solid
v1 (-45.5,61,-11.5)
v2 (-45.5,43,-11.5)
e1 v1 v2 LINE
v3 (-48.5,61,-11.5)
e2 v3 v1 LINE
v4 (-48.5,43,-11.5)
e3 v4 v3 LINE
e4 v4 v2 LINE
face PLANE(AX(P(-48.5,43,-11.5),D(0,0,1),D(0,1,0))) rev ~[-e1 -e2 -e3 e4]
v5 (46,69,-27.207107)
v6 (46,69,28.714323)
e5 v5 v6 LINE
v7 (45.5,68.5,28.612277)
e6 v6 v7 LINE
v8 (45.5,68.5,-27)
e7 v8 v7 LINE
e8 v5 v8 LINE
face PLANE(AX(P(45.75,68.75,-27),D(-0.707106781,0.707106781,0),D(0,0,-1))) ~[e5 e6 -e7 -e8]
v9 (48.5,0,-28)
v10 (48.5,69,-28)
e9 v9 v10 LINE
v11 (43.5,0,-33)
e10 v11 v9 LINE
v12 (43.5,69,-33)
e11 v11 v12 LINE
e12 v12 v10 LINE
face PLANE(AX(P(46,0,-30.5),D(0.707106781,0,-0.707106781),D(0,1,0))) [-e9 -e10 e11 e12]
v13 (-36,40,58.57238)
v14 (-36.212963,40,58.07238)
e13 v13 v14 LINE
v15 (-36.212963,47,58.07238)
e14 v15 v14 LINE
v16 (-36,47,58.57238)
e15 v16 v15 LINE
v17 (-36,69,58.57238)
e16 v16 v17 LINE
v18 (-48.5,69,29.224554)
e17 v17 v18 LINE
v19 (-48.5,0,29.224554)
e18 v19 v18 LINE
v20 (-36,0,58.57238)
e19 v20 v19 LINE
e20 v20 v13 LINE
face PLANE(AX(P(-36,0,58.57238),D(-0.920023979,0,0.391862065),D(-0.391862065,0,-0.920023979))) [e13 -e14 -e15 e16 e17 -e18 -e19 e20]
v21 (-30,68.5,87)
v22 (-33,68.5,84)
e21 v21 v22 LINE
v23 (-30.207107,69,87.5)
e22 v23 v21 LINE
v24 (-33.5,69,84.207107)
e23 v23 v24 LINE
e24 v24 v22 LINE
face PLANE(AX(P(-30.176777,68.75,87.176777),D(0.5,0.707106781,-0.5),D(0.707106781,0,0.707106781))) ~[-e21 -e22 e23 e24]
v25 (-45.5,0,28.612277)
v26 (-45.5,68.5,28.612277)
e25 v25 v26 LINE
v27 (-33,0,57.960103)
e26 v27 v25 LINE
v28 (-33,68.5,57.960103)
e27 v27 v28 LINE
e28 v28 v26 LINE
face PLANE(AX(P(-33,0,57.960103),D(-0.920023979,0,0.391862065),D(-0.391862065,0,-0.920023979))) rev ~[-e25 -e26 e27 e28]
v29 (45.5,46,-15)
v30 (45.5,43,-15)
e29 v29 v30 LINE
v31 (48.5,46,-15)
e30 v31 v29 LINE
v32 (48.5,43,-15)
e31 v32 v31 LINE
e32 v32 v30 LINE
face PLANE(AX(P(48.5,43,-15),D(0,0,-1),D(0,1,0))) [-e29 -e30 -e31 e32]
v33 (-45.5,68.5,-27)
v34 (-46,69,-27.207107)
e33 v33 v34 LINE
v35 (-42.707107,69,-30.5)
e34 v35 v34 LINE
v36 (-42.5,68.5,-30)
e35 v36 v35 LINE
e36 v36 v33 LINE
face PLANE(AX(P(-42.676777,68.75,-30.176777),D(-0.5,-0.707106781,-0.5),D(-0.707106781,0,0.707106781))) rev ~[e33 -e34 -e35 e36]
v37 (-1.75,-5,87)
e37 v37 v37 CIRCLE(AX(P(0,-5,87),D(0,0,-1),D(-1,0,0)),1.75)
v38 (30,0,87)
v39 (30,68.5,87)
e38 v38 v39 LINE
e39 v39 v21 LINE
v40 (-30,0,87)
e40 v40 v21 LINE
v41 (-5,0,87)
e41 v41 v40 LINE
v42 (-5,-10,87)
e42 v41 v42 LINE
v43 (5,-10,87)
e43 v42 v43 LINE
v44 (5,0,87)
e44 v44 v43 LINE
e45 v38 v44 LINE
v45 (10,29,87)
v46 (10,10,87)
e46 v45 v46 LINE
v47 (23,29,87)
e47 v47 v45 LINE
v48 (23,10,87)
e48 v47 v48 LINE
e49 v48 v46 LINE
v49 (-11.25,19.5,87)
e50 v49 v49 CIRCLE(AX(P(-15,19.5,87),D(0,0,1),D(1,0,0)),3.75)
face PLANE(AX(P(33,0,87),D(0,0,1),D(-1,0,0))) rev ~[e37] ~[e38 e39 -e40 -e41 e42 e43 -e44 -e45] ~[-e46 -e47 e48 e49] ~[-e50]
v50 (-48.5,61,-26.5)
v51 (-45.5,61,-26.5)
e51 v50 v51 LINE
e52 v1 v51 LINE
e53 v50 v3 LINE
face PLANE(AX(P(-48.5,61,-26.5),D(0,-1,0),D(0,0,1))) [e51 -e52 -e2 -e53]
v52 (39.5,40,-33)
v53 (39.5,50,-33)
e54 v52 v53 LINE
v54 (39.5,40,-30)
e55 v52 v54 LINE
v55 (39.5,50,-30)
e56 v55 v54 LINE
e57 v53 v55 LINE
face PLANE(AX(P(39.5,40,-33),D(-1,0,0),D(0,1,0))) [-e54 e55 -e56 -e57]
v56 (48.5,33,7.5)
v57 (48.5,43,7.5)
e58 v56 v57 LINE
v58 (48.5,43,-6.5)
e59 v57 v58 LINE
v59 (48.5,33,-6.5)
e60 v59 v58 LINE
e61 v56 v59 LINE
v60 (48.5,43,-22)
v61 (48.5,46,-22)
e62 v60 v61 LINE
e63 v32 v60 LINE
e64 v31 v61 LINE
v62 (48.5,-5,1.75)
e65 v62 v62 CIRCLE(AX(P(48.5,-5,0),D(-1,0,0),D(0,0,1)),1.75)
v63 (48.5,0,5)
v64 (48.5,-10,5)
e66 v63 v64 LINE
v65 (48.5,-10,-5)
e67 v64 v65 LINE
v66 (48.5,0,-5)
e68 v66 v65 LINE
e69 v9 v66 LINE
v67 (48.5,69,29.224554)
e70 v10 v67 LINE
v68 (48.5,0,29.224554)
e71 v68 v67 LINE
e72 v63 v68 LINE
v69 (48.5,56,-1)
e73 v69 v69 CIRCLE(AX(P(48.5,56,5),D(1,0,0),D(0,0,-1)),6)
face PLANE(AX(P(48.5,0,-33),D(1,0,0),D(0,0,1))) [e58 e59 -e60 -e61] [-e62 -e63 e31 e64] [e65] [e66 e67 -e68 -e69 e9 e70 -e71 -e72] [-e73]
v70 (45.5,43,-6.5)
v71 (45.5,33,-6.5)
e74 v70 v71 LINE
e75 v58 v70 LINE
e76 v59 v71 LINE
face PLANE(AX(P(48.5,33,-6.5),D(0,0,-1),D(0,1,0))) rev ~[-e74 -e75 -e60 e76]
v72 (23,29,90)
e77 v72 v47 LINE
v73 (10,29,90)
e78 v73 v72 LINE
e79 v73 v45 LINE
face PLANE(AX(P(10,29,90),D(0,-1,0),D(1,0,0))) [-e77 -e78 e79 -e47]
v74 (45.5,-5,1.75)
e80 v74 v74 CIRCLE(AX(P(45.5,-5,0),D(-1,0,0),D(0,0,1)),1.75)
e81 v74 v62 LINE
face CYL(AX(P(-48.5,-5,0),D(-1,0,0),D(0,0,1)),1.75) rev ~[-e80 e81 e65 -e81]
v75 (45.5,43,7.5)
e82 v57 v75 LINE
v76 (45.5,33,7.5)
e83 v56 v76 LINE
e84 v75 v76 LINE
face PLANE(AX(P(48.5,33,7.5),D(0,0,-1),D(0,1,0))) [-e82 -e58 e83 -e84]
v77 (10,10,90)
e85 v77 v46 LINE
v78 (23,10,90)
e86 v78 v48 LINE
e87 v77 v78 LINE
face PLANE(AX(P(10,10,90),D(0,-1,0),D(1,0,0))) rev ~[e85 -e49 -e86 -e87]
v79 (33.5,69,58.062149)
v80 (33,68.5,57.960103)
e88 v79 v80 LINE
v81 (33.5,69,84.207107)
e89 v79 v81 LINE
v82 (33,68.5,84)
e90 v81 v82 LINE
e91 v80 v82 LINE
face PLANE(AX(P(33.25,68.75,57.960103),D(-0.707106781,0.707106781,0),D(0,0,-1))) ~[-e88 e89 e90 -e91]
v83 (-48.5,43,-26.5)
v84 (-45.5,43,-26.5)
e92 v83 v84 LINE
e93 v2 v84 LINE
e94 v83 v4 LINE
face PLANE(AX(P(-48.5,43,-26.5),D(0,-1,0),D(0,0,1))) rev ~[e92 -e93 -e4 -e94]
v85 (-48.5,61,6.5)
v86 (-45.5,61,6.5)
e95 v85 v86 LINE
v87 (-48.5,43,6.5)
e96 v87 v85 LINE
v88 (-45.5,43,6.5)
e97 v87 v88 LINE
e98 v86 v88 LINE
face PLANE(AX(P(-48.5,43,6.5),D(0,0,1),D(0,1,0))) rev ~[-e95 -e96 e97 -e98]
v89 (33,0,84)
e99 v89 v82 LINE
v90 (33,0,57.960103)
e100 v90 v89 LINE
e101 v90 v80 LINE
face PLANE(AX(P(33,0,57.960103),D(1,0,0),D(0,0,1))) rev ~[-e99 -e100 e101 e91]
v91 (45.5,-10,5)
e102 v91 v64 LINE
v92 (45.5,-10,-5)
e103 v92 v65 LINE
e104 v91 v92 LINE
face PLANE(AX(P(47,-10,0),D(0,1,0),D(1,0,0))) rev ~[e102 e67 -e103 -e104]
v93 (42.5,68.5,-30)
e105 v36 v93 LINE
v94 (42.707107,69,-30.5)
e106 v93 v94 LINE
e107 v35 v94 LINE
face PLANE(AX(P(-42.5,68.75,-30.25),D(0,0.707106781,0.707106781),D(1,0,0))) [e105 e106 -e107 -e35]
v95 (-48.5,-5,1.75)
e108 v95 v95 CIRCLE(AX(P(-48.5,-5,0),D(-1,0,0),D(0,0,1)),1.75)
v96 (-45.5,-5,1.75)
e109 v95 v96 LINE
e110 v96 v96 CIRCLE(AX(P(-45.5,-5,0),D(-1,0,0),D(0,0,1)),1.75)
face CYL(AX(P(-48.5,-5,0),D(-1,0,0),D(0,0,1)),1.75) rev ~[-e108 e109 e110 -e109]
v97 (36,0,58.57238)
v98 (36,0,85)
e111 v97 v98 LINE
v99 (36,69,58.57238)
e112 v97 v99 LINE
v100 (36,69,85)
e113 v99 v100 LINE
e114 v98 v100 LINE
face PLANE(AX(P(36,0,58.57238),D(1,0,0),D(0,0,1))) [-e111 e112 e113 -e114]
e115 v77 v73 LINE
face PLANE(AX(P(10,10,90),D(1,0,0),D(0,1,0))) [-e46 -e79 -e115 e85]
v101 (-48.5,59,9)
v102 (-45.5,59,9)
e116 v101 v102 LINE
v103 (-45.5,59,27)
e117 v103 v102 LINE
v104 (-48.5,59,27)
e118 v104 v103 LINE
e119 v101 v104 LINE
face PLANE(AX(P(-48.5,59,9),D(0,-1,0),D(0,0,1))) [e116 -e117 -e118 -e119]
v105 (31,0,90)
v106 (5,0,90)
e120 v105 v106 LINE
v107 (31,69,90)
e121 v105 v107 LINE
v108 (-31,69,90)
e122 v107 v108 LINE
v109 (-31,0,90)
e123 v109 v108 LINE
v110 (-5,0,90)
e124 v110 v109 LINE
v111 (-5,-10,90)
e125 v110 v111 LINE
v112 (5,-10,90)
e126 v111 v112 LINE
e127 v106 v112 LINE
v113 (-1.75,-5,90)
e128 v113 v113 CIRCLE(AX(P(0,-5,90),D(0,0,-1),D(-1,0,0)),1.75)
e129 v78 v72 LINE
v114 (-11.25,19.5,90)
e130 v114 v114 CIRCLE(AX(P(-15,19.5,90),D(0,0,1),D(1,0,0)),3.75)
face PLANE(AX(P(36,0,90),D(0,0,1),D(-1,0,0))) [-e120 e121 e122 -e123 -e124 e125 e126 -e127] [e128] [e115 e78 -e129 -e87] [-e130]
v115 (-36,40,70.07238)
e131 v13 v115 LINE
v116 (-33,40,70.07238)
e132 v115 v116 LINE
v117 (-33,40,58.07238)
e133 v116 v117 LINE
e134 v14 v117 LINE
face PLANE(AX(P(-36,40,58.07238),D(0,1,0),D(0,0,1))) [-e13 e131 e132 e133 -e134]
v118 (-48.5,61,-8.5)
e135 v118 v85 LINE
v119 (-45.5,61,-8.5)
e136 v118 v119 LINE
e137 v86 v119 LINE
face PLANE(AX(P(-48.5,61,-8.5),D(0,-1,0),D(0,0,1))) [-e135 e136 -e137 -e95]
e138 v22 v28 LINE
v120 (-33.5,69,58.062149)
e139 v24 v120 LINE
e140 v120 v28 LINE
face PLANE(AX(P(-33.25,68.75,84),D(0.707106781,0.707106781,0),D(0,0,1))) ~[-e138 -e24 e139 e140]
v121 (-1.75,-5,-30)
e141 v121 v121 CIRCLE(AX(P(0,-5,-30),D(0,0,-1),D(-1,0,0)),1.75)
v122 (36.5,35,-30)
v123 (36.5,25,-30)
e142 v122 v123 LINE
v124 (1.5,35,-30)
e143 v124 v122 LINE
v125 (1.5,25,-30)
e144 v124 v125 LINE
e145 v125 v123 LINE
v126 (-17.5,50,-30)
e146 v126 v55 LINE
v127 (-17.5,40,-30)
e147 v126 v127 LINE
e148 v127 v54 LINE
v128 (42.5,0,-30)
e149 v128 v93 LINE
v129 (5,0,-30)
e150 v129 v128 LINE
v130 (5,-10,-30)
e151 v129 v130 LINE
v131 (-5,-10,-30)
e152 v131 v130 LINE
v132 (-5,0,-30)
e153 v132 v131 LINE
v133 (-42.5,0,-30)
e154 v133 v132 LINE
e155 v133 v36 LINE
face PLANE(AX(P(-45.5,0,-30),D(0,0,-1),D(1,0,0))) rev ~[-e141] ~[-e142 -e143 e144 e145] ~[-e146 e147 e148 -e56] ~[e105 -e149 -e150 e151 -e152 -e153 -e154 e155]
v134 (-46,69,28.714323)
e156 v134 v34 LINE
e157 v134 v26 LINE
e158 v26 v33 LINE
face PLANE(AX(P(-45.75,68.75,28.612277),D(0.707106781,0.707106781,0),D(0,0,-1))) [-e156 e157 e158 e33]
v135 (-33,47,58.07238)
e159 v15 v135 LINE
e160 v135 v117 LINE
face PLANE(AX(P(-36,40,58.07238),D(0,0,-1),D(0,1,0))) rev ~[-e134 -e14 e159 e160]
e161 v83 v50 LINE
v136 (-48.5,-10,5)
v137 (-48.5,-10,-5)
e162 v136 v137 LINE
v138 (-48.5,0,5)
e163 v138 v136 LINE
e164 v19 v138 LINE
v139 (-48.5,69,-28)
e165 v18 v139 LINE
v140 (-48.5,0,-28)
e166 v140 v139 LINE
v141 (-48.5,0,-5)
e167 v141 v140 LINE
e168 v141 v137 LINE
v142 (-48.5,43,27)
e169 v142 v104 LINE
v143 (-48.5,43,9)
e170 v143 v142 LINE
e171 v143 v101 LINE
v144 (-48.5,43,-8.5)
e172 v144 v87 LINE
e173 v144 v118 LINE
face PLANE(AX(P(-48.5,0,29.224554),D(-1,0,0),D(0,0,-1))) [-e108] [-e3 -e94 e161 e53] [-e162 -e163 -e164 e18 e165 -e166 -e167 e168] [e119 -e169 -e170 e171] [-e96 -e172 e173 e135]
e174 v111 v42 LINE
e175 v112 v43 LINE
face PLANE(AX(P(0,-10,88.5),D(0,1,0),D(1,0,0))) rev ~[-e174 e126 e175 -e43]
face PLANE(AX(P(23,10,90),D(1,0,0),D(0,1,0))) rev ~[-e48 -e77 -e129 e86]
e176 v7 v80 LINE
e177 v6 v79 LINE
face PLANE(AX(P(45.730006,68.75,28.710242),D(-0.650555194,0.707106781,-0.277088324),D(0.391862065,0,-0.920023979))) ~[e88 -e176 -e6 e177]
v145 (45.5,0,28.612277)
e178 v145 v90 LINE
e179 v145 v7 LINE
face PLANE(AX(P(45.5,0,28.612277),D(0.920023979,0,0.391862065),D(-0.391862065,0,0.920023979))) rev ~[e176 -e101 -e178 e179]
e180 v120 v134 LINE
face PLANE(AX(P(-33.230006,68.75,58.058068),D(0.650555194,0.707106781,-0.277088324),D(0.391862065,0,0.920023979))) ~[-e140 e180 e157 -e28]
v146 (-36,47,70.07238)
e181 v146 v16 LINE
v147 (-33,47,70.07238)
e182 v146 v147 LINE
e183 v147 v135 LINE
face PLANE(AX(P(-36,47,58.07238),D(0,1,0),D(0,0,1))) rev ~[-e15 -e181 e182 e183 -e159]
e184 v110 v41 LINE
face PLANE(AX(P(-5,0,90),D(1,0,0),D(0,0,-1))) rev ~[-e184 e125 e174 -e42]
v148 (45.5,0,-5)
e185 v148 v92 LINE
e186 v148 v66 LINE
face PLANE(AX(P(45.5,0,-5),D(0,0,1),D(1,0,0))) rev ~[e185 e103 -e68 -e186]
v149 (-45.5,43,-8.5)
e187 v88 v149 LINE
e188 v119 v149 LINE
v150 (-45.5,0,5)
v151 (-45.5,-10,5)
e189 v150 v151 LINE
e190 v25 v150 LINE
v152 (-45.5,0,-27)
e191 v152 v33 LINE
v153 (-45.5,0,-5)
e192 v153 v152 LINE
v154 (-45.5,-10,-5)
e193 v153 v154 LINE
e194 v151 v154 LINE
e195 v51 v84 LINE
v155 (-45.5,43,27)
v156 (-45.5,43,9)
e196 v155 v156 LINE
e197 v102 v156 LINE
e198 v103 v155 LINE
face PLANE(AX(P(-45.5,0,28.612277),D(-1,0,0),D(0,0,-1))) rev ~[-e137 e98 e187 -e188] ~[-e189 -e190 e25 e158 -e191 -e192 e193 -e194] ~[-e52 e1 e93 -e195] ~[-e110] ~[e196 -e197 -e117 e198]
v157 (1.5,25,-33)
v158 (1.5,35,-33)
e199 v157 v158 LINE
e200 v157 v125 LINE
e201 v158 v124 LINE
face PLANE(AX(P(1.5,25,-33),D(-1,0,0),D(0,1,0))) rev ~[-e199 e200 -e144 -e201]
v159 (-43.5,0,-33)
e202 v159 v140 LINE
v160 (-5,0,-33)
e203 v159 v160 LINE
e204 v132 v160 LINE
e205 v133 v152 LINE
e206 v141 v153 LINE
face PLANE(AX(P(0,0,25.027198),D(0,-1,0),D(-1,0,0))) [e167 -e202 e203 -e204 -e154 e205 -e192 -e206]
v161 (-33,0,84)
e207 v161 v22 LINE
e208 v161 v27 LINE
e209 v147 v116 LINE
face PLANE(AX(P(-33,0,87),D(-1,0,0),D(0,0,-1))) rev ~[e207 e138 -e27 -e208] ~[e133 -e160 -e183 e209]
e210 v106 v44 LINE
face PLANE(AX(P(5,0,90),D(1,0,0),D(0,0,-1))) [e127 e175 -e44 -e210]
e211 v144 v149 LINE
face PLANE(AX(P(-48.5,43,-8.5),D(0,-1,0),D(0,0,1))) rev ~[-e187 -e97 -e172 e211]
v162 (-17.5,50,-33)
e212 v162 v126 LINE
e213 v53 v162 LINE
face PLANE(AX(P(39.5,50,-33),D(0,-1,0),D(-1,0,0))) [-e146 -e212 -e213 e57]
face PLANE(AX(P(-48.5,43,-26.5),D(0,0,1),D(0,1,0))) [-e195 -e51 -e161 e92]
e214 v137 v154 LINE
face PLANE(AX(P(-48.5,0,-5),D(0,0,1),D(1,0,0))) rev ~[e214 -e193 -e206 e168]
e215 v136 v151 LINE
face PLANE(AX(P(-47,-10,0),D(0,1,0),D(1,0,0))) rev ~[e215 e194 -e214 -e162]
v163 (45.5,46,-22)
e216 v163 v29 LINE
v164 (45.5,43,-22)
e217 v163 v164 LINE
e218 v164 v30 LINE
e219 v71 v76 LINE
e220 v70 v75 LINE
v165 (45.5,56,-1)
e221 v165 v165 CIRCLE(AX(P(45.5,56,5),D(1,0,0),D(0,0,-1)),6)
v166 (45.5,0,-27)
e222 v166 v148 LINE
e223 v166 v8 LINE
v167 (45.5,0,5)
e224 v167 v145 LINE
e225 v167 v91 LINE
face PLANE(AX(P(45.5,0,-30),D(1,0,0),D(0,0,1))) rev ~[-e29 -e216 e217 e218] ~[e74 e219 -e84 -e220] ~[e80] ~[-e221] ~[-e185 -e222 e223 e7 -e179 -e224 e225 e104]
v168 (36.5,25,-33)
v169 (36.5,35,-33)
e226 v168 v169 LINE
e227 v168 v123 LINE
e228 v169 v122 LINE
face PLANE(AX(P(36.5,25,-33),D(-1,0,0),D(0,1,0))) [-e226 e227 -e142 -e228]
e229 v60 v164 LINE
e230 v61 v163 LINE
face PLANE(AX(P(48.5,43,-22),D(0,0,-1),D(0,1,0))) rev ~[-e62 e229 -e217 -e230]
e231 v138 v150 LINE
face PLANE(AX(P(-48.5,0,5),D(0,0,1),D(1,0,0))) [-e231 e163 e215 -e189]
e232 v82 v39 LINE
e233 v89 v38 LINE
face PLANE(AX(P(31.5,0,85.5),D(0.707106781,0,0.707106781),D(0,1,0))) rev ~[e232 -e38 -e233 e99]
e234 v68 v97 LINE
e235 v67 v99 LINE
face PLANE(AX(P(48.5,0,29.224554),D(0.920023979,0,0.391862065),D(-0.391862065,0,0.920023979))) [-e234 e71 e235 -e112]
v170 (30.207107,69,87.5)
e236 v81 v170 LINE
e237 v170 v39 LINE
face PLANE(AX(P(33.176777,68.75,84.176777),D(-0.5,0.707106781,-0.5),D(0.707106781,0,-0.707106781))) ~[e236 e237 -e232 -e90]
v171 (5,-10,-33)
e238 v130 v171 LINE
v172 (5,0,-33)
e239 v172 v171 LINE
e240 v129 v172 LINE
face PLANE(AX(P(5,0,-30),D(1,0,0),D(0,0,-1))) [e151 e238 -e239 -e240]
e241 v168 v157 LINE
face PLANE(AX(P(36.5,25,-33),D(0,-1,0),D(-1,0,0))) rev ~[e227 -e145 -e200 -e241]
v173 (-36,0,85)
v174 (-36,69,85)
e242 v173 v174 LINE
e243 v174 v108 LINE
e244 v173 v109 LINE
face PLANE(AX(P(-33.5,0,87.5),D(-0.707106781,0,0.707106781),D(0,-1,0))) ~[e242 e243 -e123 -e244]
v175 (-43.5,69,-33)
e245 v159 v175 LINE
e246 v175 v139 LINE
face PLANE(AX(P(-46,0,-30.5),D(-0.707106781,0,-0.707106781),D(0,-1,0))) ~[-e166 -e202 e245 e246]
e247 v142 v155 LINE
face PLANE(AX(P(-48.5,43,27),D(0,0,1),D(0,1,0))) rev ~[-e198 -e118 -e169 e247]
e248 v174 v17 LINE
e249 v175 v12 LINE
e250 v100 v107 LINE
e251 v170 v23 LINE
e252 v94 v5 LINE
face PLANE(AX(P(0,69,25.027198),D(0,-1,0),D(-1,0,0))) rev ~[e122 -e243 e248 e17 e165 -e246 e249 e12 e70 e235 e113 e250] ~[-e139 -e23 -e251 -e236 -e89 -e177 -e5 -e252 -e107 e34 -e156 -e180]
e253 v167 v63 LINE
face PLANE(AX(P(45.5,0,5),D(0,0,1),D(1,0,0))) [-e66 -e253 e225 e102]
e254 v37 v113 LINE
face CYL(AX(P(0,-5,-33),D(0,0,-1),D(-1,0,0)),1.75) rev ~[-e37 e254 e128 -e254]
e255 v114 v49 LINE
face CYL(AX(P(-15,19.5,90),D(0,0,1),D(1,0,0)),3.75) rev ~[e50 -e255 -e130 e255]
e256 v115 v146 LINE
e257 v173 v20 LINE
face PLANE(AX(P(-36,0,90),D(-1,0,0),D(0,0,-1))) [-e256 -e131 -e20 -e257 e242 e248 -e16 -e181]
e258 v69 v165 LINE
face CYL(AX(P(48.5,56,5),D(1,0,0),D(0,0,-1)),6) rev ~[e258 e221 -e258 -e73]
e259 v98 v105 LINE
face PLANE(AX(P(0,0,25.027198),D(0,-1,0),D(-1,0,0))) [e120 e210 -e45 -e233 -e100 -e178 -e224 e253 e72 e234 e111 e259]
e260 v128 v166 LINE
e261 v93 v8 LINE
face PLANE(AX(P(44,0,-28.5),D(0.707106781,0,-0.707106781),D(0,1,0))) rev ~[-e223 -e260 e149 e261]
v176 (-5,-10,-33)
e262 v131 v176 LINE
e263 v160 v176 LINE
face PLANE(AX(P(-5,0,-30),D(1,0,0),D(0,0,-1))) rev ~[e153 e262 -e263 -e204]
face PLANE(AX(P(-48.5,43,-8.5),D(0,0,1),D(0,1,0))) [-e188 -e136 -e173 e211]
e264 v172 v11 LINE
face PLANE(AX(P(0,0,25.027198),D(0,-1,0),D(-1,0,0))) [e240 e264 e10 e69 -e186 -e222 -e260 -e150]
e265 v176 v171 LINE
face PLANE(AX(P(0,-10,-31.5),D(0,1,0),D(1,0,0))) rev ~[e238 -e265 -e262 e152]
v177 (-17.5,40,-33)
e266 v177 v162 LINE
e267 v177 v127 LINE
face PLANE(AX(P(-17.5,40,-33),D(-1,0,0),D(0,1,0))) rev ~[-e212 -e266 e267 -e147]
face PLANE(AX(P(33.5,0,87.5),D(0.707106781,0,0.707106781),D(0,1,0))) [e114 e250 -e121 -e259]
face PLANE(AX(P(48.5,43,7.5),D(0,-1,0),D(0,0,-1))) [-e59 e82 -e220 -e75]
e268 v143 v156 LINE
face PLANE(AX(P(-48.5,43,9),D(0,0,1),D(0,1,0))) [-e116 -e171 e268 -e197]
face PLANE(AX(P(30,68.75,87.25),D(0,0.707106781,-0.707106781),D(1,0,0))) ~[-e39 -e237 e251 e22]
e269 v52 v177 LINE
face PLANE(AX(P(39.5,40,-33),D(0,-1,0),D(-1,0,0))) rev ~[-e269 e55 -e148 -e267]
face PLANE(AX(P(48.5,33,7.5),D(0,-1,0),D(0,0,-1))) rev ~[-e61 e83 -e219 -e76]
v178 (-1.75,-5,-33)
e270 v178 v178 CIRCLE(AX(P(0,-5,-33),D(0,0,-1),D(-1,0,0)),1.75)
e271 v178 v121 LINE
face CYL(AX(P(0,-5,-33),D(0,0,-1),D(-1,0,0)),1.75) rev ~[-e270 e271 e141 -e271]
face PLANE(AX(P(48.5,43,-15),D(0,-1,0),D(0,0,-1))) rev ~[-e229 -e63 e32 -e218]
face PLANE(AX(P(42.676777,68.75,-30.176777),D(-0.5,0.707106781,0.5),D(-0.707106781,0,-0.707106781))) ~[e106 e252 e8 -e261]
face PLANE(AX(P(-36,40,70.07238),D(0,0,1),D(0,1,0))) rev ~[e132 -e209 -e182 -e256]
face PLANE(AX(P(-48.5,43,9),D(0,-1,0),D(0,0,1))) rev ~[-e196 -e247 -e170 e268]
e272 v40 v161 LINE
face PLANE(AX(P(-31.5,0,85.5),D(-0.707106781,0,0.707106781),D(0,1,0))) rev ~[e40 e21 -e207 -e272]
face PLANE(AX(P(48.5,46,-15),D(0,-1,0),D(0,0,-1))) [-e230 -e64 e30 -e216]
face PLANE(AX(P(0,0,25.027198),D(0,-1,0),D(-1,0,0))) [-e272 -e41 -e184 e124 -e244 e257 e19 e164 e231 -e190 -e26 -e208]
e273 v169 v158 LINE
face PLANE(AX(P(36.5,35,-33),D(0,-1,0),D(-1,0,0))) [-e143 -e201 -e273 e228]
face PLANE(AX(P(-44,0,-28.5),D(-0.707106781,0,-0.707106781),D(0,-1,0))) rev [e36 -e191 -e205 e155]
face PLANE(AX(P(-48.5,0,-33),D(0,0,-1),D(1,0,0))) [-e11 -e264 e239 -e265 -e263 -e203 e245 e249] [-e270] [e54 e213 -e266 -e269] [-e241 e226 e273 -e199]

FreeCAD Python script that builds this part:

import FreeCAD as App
import Part
import Sketcher

V = App.Vector
Q = App.Units.Quantity


def edges_at(feature, points):
    """Names of the edges that pass closest to the given points."""
    edges = feature.Shape.Edges
    near = lambda p: min(range(len(edges)), key=lambda i: edges[i].distToShape(Part.Vertex(*p))[0])
    return sorted({f"Edge{near(p) + 1}" for p in points})

doc = App.newDocument("Part")
body = doc.addObject("PartDesign::Body", "Body")

sketch1 = body.newObject("Sketcher::SketchObject", "Sketch")
sketch1.AttachmentSupport = (doc.getObject("XZ_Plane"), [""])
sketch1.MapMode = "FlatFace"
sketch1.addGeometry([
    Part.LineSegment(V(48, -33, 0), V(-48, -33, 0)),
    Part.LineSegment(V(-48, -33, 0), V(-48, 29, 0)),
    Part.LineSegment(V(-48, 29, 0), V(-36, 59, 0)),
    Part.LineSegment(V(-36, 59, 0), V(-36, 90, 0)),
    Part.LineSegment(V(-36, 90, 0), V(36, 90, 0)),
    Part.LineSegment(V(36, 90, 0), V(36, 59, 0)),
    Part.LineSegment(V(36, 59, 0), V(48, 29, 0)),
    Part.LineSegment(V(48, 29, 0), V(48, -33, 0)),
    Part.LineSegment(V(-46, -30, 0), V(46, -30, 0)),
    Part.LineSegment(V(46, -30, 0), V(46, 29, 0)),
    Part.LineSegment(V(46, 29, 0), V(33, 58, 0)),
    Part.LineSegment(V(33, 58, 0), V(33, 87, 0)),
    Part.LineSegment(V(33, 87, 0), V(-33, 87, 0)),
    Part.LineSegment(V(-33, 87, 0), V(-33, 58, 0)),
    Part.LineSegment(V(-33, 58, 0), V(-46, 29, 0)),
    Part.LineSegment(V(-46, 29, 0), V(-46, -30, 0)),
], False)
sketch1.addConstraint([
    Sketcher.Constraint("Coincident", 0, 2, 1, 1),
    Sketcher.Constraint("Coincident", 1, 2, 2, 1),
    Sketcher.Constraint("Coincident", 2, 2, 3, 1),
    Sketcher.Constraint("Coincident", 3, 2, 4, 1),
    Sketcher.Constraint("Coincident", 4, 2, 5, 1),
    Sketcher.Constraint("Coincident", 5, 2, 6, 1),
    Sketcher.Constraint("Coincident", 6, 2, 7, 1),
    Sketcher.Constraint("Coincident", 7, 2, 0, 1),
    Sketcher.Constraint("Coincident", 8, 2, 9, 1),
    Sketcher.Constraint("Coincident", 9, 2, 10, 1),
    Sketcher.Constraint("Coincident", 10, 2, 11, 1),
    Sketcher.Constraint("Coincident", 11, 2, 12, 1),
    Sketcher.Constraint("Coincident", 12, 2, 13, 1),
    Sketcher.Constraint("Coincident", 13, 2, 14, 1),
    Sketcher.Constraint("Coincident", 14, 2, 15, 1),
    Sketcher.Constraint("Coincident", 15, 2, 8, 1),
    Sketcher.Constraint("Horizontal", 0),
    Sketcher.Constraint("Vertical", 1),
    Sketcher.Constraint("Vertical", 3),
    Sketcher.Constraint("Horizontal", 4),
    Sketcher.Constraint("Vertical", 5),
    Sketcher.Constraint("Vertical", 7),
    Sketcher.Constraint("Horizontal", 8),
    Sketcher.Constraint("Vertical", 9),
    Sketcher.Constraint("Vertical", 11),
    Sketcher.Constraint("Horizontal", 12),
    Sketcher.Constraint("Vertical", 13),
    Sketcher.Constraint("Vertical", 15),
    Sketcher.Constraint("Symmetric", 2, 2, 5, 2, -2),
    Sketcher.Constraint("Symmetric", 1, 2, 6, 2, -2),
    Sketcher.Constraint("Symmetric", 10, 2, 13, 2, -2),
    Sketcher.Constraint("Symmetric", 9, 2, 14, 2, -2),
    Sketcher.Constraint("Parallel", 6, 10),
    Sketcher.Constraint("Equal", 6, 10),
    Sketcher.Constraint("DistanceX", 0, 2, 0, 1, Q("97 mm")),
    Sketcher.Constraint("DistanceX", 4, 1, 4, 2, Q("72 mm")),
    Sketcher.Constraint("DistanceX", 8, 1, 8, 2, Q("91 mm")),
    Sketcher.Constraint("DistanceY", 0, 2, -1, 1, Q("33 mm")),
    Sketcher.Constraint("DistanceY", -1, 1, 3, 2, Q("90 mm")),
    Sketcher.Constraint("DistanceY", 8, 2, -1, 1, Q("30 mm")),
    Sketcher.Constraint("DistanceY", -1, 1, 11, 2, Q("87 mm")),
    Sketcher.Constraint("DistanceY", 3, 1, 3, 2, Q("31.42762 mm")),
    Sketcher.Constraint("Distance", 2, Q("31.89898 mm")),
    Sketcher.Constraint("DistanceY", 9, 1, 9, 2, Q("58.612277 mm")),
])
pad1 = body.newObject("PartDesign::Pad", "Pad")
pad1.Profile = sketch1
pad1.Length = 69
pad1.Reversed = True
doc.recompute()

chamfer = body.newObject("PartDesign::Chamfer", "Chamfer")
chamfer.Base = (pad1, edges_at(pad1, [
    (-45.5, 34.5, -30),
    (-33, 34.5, 87),
    (33, 34.5, 87),
    (45.5, 34.5, -30),
]))
chamfer.Size = 3
doc.recompute()

chamfer2 = body.newObject("PartDesign::Chamfer", "Chamfer001")
chamfer2.Base = (chamfer, edges_at(chamfer, [
    (-48.5, 34.5, -33),
    (48.5, 34.5, -33),
    (36, 34.5, 90),
    (-36, 34.5, 90),
]))
chamfer2.Size = 5

sketch2 = body.newObject("Sketcher::SketchObject", "Sketch001")
sketch2.AttachmentSupport = (doc.getObject("XZ_Plane"), [""])
sketch2.MapMode = "FlatFace"
sketch2.addGeometry([
    Part.LineSegment(V(-5, -33, 0), V(-5, -30, 0)),
    Part.LineSegment(V(-5, -30, 0), V(5, -30, 0)),
    Part.LineSegment(V(5, -30, 0), V(5, -33, 0)),
    Part.LineSegment(V(5, -33, 0), V(-5, -33, 0)),
    Part.LineSegment(V(-48.5, -5, 0), V(-48.5, 5, 0)),
    Part.LineSegment(V(-48.5, 5, 0), V(-45.5, 5, 0)),
    Part.LineSegment(V(-45.5, 5, 0), V(-45.5, -5, 0)),
    Part.LineSegment(V(-45.5, -5, 0), V(-48.5, -5, 0)),
    Part.LineSegment(V(-5, 87, 0), V(-5, 90, 0)),
    Part.LineSegment(V(-5, 90, 0), V(5, 90, 0)),
    Part.LineSegment(V(5, 90, 0), V(5, 87, 0)),
    Part.LineSegment(V(5, 87, 0), V(-5, 87, 0)),
    Part.LineSegment(V(45.5, -5, 0), V(45.5, 5, 0)),
    Part.LineSegment(V(45.5, 5, 0), V(48.5, 5, 0)),
    Part.LineSegment(V(48.5, 5, 0), V(48.5, -5, 0)),
    Part.LineSegment(V(48.5, -5, 0), V(45.5, -5, 0)),
], False)
sketch2.addConstraint([
    Sketcher.Constraint("Coincident", 0, 2, 1, 1),
    Sketcher.Constraint("Coincident", 1, 2, 2, 1),
    Sketcher.Constraint("Coincident", 2, 2, 3, 1),
    Sketcher.Constraint("Coincident", 3, 2, 0, 1),
    Sketcher.Constraint("Coincident", 4, 2, 5, 1),
    Sketcher.Constraint("Coincident", 5, 2, 6, 1),
    Sketcher.Constraint("Coincident", 6, 2, 7, 1),
    Sketcher.Constraint("Coincident", 7, 2, 4, 1),
    Sketcher.Constraint("Coincident", 8, 2, 9, 1),
    Sketcher.Constraint("Coincident", 9, 2, 10, 1),
    Sketcher.Constraint("Coincident", 10, 2, 11, 1),
    Sketcher.Constraint("Coincident", 11, 2, 8, 1),
    Sketcher.Constraint("Coincident", 12, 2, 13, 1),
    Sketcher.Constraint("Coincident", 13, 2, 14, 1),
    Sketcher.Constraint("Coincident", 14, 2, 15, 1),
    Sketcher.Constraint("Coincident", 15, 2, 12, 1),
    Sketcher.Constraint("Vertical", 0),
    Sketcher.Constraint("Horizontal", 1),
    Sketcher.Constraint("Vertical", 2),
    Sketcher.Constraint("Horizontal", 3),
    Sketcher.Constraint("Vertical", 4),
    Sketcher.Constraint("Horizontal", 5),
    Sketcher.Constraint("Vertical", 6),
    Sketcher.Constraint("Horizontal", 7),
    Sketcher.Constraint("Vertical", 8),
    Sketcher.Constraint("Horizontal", 9),
    Sketcher.Constraint("Vertical", 10),
    Sketcher.Constraint("Horizontal", 11),
    Sketcher.Constraint("Vertical", 12),
    Sketcher.Constraint("Horizontal", 13),
    Sketcher.Constraint("Vertical", 14),
    Sketcher.Constraint("Horizontal", 15),
    Sketcher.Constraint("Symmetric", 6, 2, 12, 2, -1, 1),
    Sketcher.Constraint("Symmetric", 4, 2, 14, 2, -1, 1),
    Sketcher.Constraint("Horizontal", 5, 2, 12, 2),
    Sketcher.Constraint("Vertical", 3, 2, 8, 2),
    Sketcher.Constraint("Vertical", 2, 2, 9, 2),
    Sketcher.Constraint("Equal", 15, 0),
    Sketcher.Constraint("Equal", 11, 4),
    Sketcher.Constraint("Equal", 2, 8),
    Sketcher.Constraint("DistanceX", 1, 1, 1, 2, Q("10 mm")),
    Sketcher.Constraint("DistanceX", 5, 1, 5, 2, Q("3 mm")),
    Sketcher.Constraint("DistanceX", 0, 2, -1, 1, Q("5 mm")),
    Sketcher.Constraint("DistanceY", 0, 2, -1, 1, Q("30 mm")),
    Sketcher.Constraint("DistanceY", -1, 1, 8, 2, Q("90 mm")),
    Sketcher.Constraint("DistanceX", 5, 2, 12, 2, Q("91 mm")),
])
pad2 = body.newObject("PartDesign::Pad", "Pad001")
pad2.Profile = sketch2
pad2.Length = 10

sketch3 = body.newObject("Sketcher::SketchObject", "Sketch002")
sketch3.AttachmentSupport = (doc.getObject("YZ_Plane"), [""])
sketch3.MapMode = "FlatFace"
sketch3.AttachmentOffset = App.Placement(V(0, 0, -48.5), App.Rotation())
sketch3.addGeometry(Part.Circle(V(-5, 0, 0), V(0, 0, 1), 1.8), False)
sketch3.addConstraint([
    Sketcher.Constraint("PointOnObject", 0, 3, -1),
    Sketcher.Constraint("Diameter", 0, Q("3.5 mm")),
    Sketcher.Constraint("DistanceX", 0, 3, -1, 1, Q("5 mm")),
])
pocket1 = body.newObject("PartDesign::Pocket", "Pocket")
pocket1.Profile = sketch3
pocket1.Type = "ThroughAll"
pocket1.Reversed = True

sketch4 = body.newObject("Sketcher::SketchObject", "Sketch003")
sketch4.AttachmentSupport = (doc.getObject("XY_Plane"), [""])
sketch4.MapMode = "FlatFace"
sketch4.AttachmentOffset = App.Placement(V(0, 0, -33), App.Rotation())
sketch4.addGeometry(Part.Circle(V(0, -5, 0), V(0, 0, 1), 1.8), False)
sketch4.addConstraint([
    Sketcher.Constraint("PointOnObject", 0, 3, -2),
    Sketcher.Constraint("Diameter", 0, Q("3.5 mm")),
    Sketcher.Constraint("DistanceY", 0, 3, -1, 1, Q("5 mm")),
])
pocket2 = body.newObject("PartDesign::Pocket", "Pocket001")
pocket2.Profile = sketch4
pocket2.Type = "ThroughAll"
pocket2.Reversed = True

sketch5 = body.newObject("Sketcher::SketchObject", "Sketch004")
sketch5.AttachmentSupport = (doc.getObject("XY_Plane"), [""])
sketch5.MapMode = "FlatFace"
sketch5.AttachmentOffset = App.Placement(V(0, 0, -33), App.Rotation())
sketch5.addGeometry([
    Part.LineSegment(V(40, 50, 0), V(40, 40, 0)),
    Part.LineSegment(V(40, 40, 0), V(-18, 40, 0)),
    Part.LineSegment(V(-18, 40, 0), V(-18, 50, 0)),
    Part.LineSegment(V(-18, 50, 0), V(40, 50, 0)),
], False)
sketch5.addConstraint([
    Sketcher.Constraint("Coincident", 0, 2, 1, 1),
    Sketcher.Constraint("Coincident", 1, 2, 2, 1),
    Sketcher.Constraint("Coincident", 2, 2, 3, 1),
    Sketcher.Constraint("Coincident", 3, 2, 0, 1),
    Sketcher.Constraint("Vertical", 0),
    Sketcher.Constraint("Horizontal", 1),
    Sketcher.Constraint("Vertical", 2),
    Sketcher.Constraint("Horizontal", 3),
    Sketcher.Constraint("DistanceX", 1, 2, 1, 1, Q("57 mm")),
    Sketcher.Constraint("DistanceY", 0, 2, 0, 1, Q("10 mm")),
    Sketcher.Constraint("DistanceY", -1, 1, 0, 2, Q("40 mm")),
    Sketcher.Constraint("DistanceX", -1, 1, 0, 2, Q("39.5 mm")),
])
pocket3 = body.newObject("PartDesign::Pocket", "Pocket002")
pocket3.Profile = sketch5
pocket3.Type = "UpToFirst"
pocket3.Reversed = True

sketch6 = body.newObject("Sketcher::SketchObject", "Sketch005")
sketch6.AttachmentSupport = (doc.getObject("XY_Plane"), [""])
sketch6.MapMode = "FlatFace"
sketch6.AttachmentOffset = App.Placement(V(0, 0, -33), App.Rotation())
sketch6.addGeometry([
    Part.LineSegment(V(36, 35, 0), V(36, 25, 0)),
    Part.LineSegment(V(36, 25, 0), V(2, 25, 0)),
    Part.LineSegment(V(2, 25, 0), V(2, 35, 0)),
    Part.LineSegment(V(2, 35, 0), V(36, 35, 0)),
], False)
sketch6.addConstraint([
    Sketcher.Constraint("Coincident", 0, 2, 1, 1),
    Sketcher.Constraint("Coincident", 1, 2, 2, 1),
    Sketcher.Constraint("Coincident", 2, 2, 3, 1),
    Sketcher.Constraint("Coincident", 3, 2, 0, 1),
    Sketcher.Constraint("Vertical", 0),
    Sketcher.Constraint("Horizontal", 1),
    Sketcher.Constraint("Vertical", 2),
    Sketcher.Constraint("Horizontal", 3),
    Sketcher.Constraint("DistanceX", 1, 2, 1, 1, Q("35 mm")),
    Sketcher.Constraint("DistanceY", 0, 2, 0, 1, Q("10 mm")),
    Sketcher.Constraint("DistanceY", -1, 1, 0, 2, Q("25 mm")),
    Sketcher.Constraint("DistanceX", -1, 1, 0, 2, Q("36.5 mm")),
])
pocket4 = body.newObject("PartDesign::Pocket", "Pocket003")
pocket4.Profile = sketch6
pocket4.Type = "UpToFirst"
pocket4.Reversed = True

sketch7 = body.newObject("Sketcher::SketchObject", "Sketch006")
sketch7.AttachmentSupport = (doc.getObject("YZ_Plane"), [""])
sketch7.MapMode = "FlatFace"
sketch7.AttachmentOffset = App.Placement(V(0, 0, -48.5), App.Rotation())
sketch7.addGeometry([
    Part.LineSegment(V(61, -26, 0), V(43, -26, 0)),
    Part.LineSegment(V(43, -26, 0), V(43, -12, 0)),
    Part.LineSegment(V(43, -12, 0), V(61, -12, 0)),
    Part.LineSegment(V(61, -12, 0), V(61, -26, 0)),
], False)
sketch7.addConstraint([
    Sketcher.Constraint("Coincident", 0, 2, 1, 1),
    Sketcher.Constraint("Coincident", 1, 2, 2, 1),
    Sketcher.Constraint("Coincident", 2, 2, 3, 1),
    Sketcher.Constraint("Coincident", 3, 2, 0, 1),
    Sketcher.Constraint("Horizontal", 0),
    Sketcher.Constraint("Vertical", 1),
    Sketcher.Constraint("Horizontal", 2),
    Sketcher.Constraint("Vertical", 3),
    Sketcher.Constraint("DistanceX", 0, 2, 0, 1, Q("18 mm")),
    Sketcher.Constraint("DistanceY", 1, 1, 1, 2, Q("15 mm")),
    Sketcher.Constraint("DistanceX", -1, 1, 0, 2, Q("43 mm")),
    Sketcher.Constraint("DistanceY", 0, 2, -1, 1, Q("26.5 mm")),
])
pocket5 = body.newObject("PartDesign::Pocket", "Pocket004")
pocket5.Profile = sketch7
pocket5.Type = "UpToFirst"
pocket5.Reversed = True

sketch8 = body.newObject("Sketcher::SketchObject", "Sketch007")
sketch8.AttachmentSupport = (doc.getObject("YZ_Plane"), [""])
sketch8.MapMode = "FlatFace"
sketch8.AttachmentOffset = App.Placement(V(0, 0, -48.5), App.Rotation())
sketch8.addGeometry([
    Part.LineSegment(V(61, -8, 0), V(43, -8, 0)),
    Part.LineSegment(V(43, -8, 0), V(43, 6, 0)),
    Part.LineSegment(V(43, 6, 0), V(61, 6, 0)),
    Part.LineSegment(V(61, 6, 0), V(61, -8, 0)),
], False)
sketch8.addConstraint([
    Sketcher.Constraint("Coincident", 0, 2, 1, 1),
    Sketcher.Constraint("Coincident", 1, 2, 2, 1),
    Sketcher.Constraint("Coincident", 2, 2, 3, 1),
    Sketcher.Constraint("Coincident", 3, 2, 0, 1),
    Sketcher.Constraint("Horizontal", 0),
    Sketcher.Constraint("Vertical", 1),
    Sketcher.Constraint("Horizontal", 2),
    Sketcher.Constraint("Vertical", 3),
    Sketcher.Constraint("DistanceX", 0, 2, 0, 1, Q("18 mm")),
    Sketcher.Constraint("DistanceY", 1, 1, 1, 2, Q("15 mm")),
    Sketcher.Constraint("DistanceX", -1, 1, 0, 2, Q("43 mm")),
    Sketcher.Constraint("DistanceY", 0, 2, -1, 1, Q("8.5 mm")),
])
pocket6 = body.newObject("PartDesign::Pocket", "Pocket005")
pocket6.Profile = sketch8
pocket6.Type = "UpToFirst"
pocket6.Reversed = True

sketch9 = body.newObject("Sketcher::SketchObject", "Sketch008")
sketch9.AttachmentSupport = (doc.getObject("YZ_Plane"), [""])
sketch9.MapMode = "FlatFace"
sketch9.AttachmentOffset = App.Placement(V(0, 0, -48.5), App.Rotation())
sketch9.addGeometry([
    Part.LineSegment(V(59, 9, 0), V(43, 9, 0)),
    Part.LineSegment(V(43, 9, 0), V(43, 27, 0)),
    Part.LineSegment(V(43, 27, 0), V(59, 27, 0)),
    Part.LineSegment(V(59, 27, 0), V(59, 9, 0)),
], False)
sketch9.addConstraint([
    Sketcher.Constraint("Coincident", 0, 2, 1, 1),
    Sketcher.Constraint("Coincident", 1, 2, 2, 1),
    Sketcher.Constraint("Coincident", 2, 2, 3, 1),
    Sketcher.Constraint("Coincident", 3, 2, 0, 1),
    Sketcher.Constraint("Horizontal", 0),
    Sketcher.Constraint("Vertical", 1),
    Sketcher.Constraint("Horizontal", 2),
    Sketcher.Constraint("Vertical", 3),
    Sketcher.Constraint("DistanceX", 0, 2, 0, 1, Q("16 mm")),
    Sketcher.Constraint("DistanceY", 1, 1, 1, 2, Q("18 mm")),
    Sketcher.Constraint("DistanceX", -1, 1, 0, 2, Q("43 mm")),
    Sketcher.Constraint("DistanceY", -1, 1, 0, 2, Q("9 mm")),
])
pocket7 = body.newObject("PartDesign::Pocket", "Pocket006")
pocket7.Profile = sketch9
pocket7.Type = "UpToFirst"
pocket7.Reversed = True

sketch10 = body.newObject("Sketcher::SketchObject", "Sketch009")
sketch10.AttachmentSupport = (doc.getObject("YZ_Plane"), [""])
sketch10.MapMode = "FlatFace"
sketch10.AttachmentOffset = App.Placement(V(0, 0, -36), App.Rotation())
sketch10.addGeometry([
    Part.LineSegment(V(47, 58, 0), V(40, 58, 0)),
    Part.LineSegment(V(40, 58, 0), V(40, 70, 0)),
    Part.LineSegment(V(40, 70, 0), V(47, 70, 0)),
    Part.LineSegment(V(47, 70, 0), V(47, 58, 0)),
], False)
sketch10.addConstraint([
    Sketcher.Constraint("Coincident", 0, 2, 1, 1),
    Sketcher.Constraint("Coincident", 1, 2, 2, 1),
    Sketcher.Constraint("Coincident", 2, 2, 3, 1),
    Sketcher.Constraint("Coincident", 3, 2, 0, 1),
    Sketcher.Constraint("Horizontal", 0),
    Sketcher.Constraint("Vertical", 1),
    Sketcher.Constraint("Horizontal", 2),
    Sketcher.Constraint("Vertical", 3),
    Sketcher.Constraint("DistanceX", 0, 2, 0, 1, Q("7 mm")),
    Sketcher.Constraint("DistanceY", 1, 1, 1, 2, Q("12 mm")),
    Sketcher.Constraint("DistanceX", -1, 1, 0, 2, Q("40 mm")),
    Sketcher.Constraint("DistanceY", -1, 1, 0, 2, Q("58.07238 mm")),
])
pocket8 = body.newObject("PartDesign::Pocket", "Pocket007")
pocket8.Profile = sketch10
pocket8.Type = "UpToFirst"
pocket8.Reversed = True

sketch11 = body.newObject("Sketcher::SketchObject", "Sketch010")
sketch11.AttachmentSupport = (doc.getObject("YZ_Plane"), [""])
sketch11.MapMode = "FlatFace"
sketch11.AttachmentOffset = App.Placement(V(0, 0, -36), App.Rotation())
sketch11.addGeometry([
    Part.LineSegment(V(47, 58, 0), V(40, 58, 0)),
    Part.LineSegment(V(40, 58, 0), V(40, 70, 0)),
    Part.LineSegment(V(40, 70, 0), V(47, 70, 0)),
    Part.LineSegment(V(47, 70, 0), V(47, 58, 0)),
], False)
sketch11.addConstraint([
    Sketcher.Constraint("Coincident", 0, 2, 1, 1),
    Sketcher.Constraint("Coincident", 1, 2, 2, 1),
    Sketcher.Constraint("Coincident", 2, 2, 3, 1),
    Sketcher.Constraint("Coincident", 3, 2, 0, 1),
    Sketcher.Constraint("Horizontal", 0),
    Sketcher.Constraint("Vertical", 1),
    Sketcher.Constraint("Horizontal", 2),
    Sketcher.Constraint("Vertical", 3),
    Sketcher.Constraint("DistanceX", 0, 2, 0, 1, Q("7 mm")),
    Sketcher.Constraint("DistanceY", 1, 1, 1, 2, Q("12 mm")),
    Sketcher.Constraint("DistanceX", -1, 1, 0, 2, Q("40 mm")),
    Sketcher.Constraint("DistanceY", -1, 1, 0, 2, Q("58.07238 mm")),
])
pocket9 = body.newObject("PartDesign::Pocket", "Pocket008")
pocket9.Profile = sketch11
pocket9.Length = 142.425776

sketch12 = body.newObject("Sketcher::SketchObject", "Sketch011")
sketch12.AttachmentSupport = (doc.getObject("YZ_Plane"), [""])
sketch12.MapMode = "FlatFace"
sketch12.AttachmentOffset = App.Placement(V(0, 0, 48.5), App.Rotation())
sketch12.addGeometry(Part.Circle(V(56, 5, 0), V(0, 0, 1), 6), False)
sketch12.addConstraint([
    Sketcher.Constraint("Diameter", 0, Q("12 mm")),
    Sketcher.Constraint("DistanceX", -1, 1, 0, 3, Q("56 mm")),
    Sketcher.Constraint("DistanceY", -1, 1, 0, 3, Q("5 mm")),
])
pocket10 = body.newObject("PartDesign::Pocket", "Pocket009")
pocket10.Profile = sketch12
pocket10.Type = "UpToFirst"

sketch13 = body.newObject("Sketcher::SketchObject", "Sketch012")
sketch13.AttachmentSupport = (doc.getObject("XY_Plane"), [""])
sketch13.MapMode = "FlatFace"
sketch13.AttachmentOffset = App.Placement(V(0, 0, 90), App.Rotation())
sketch13.addGeometry([
    Part.LineSegment(V(10, 29, 0), V(10, 10, 0)),
    Part.LineSegment(V(10, 10, 0), V(23, 10, 0)),
    Part.LineSegment(V(23, 10, 0), V(23, 29, 0)),
    Part.LineSegment(V(23, 29, 0), V(10, 29, 0)),
], False)
sketch13.addConstraint([
    Sketcher.Constraint("Coincident", 0, 2, 1, 1),
    Sketcher.Constraint("Coincident", 1, 2, 2, 1),
    Sketcher.Constraint("Coincident", 2, 2, 3, 1),
    Sketcher.Constraint("Coincident", 3, 2, 0, 1),
    Sketcher.Constraint("Vertical", 0),
    Sketcher.Constraint("Horizontal", 1),
    Sketcher.Constraint("Vertical", 2),
    Sketcher.Constraint("Horizontal", 3),
    Sketcher.Constraint("DistanceX", 1, 1, 1, 2, Q("13 mm")),
    Sketcher.Constraint("DistanceY", 0, 2, 0, 1, Q("19 mm")),
    Sketcher.Constraint("DistanceX", -1, 1, 0, 2, Q("10 mm")),
    Sketcher.Constraint("DistanceY", -1, 1, 0, 2, Q("10 mm")),
])
pocket11 = body.newObject("PartDesign::Pocket", "Pocket010")
pocket11.Profile = sketch13
pocket11.Type = "UpToFirst"

sketch14 = body.newObject("Sketcher::SketchObject", "Sketch013")
sketch14.AttachmentSupport = (doc.getObject("YZ_Plane"), [""])
sketch14.MapMode = "FlatFace"
sketch14.AttachmentOffset = App.Placement(V(0, 0, 48.5), App.Rotation())
sketch14.addGeometry([
    Part.LineSegment(V(43, 8, 0), V(33, 8, 0)),
    Part.LineSegment(V(33, 8, 0), V(33, -6, 0)),
    Part.LineSegment(V(33, -6, 0), V(43, -6, 0)),
    Part.LineSegment(V(43, -6, 0), V(43, 8, 0)),
], False)
sketch14.addConstraint([
    Sketcher.Constraint("Coincident", 0, 2, 1, 1),
    Sketcher.Constraint("Coincident", 1, 2, 2, 1),
    Sketcher.Constraint("Coincident", 2, 2, 3, 1),
    Sketcher.Constraint("Coincident", 3, 2, 0, 1),
    Sketcher.Constraint("Horizontal", 0),
    Sketcher.Constraint("Vertical", 1),
    Sketcher.Constraint("Horizontal", 2),
    Sketcher.Constraint("Vertical", 3),
    Sketcher.Constraint("DistanceX", 0, 2, 0, 1, Q("10 mm")),
    Sketcher.Constraint("DistanceY", 1, 2, 1, 1, Q("14 mm")),
    Sketcher.Constraint("DistanceX", -1, 1, 0, 2, Q("33 mm")),
    Sketcher.Constraint("DistanceY", -1, 1, 0, 2, Q("7.5 mm")),
])
pocket12 = body.newObject("PartDesign::Pocket", "Pocket011")
pocket12.Profile = sketch14
pocket12.Type = "UpToFirst"

sketch15 = body.newObject("Sketcher::SketchObject", "Sketch014")
sketch15.AttachmentSupport = (doc.getObject("YZ_Plane"), [""])
sketch15.MapMode = "FlatFace"
sketch15.AttachmentOffset = App.Placement(V(0, 0, 48.5), App.Rotation())
sketch15.addGeometry([
    Part.LineSegment(V(46, -15, 0), V(43, -15, 0)),
    Part.LineSegment(V(43, -15, 0), V(43, -22, 0)),
    Part.LineSegment(V(43, -22, 0), V(46, -22, 0)),
    Part.LineSegment(V(46, -22, 0), V(46, -15, 0)),
], False)
sketch15.addConstraint([
    Sketcher.Constraint("Coincident", 0, 2, 1, 1),
    Sketcher.Constraint("Coincident", 1, 2, 2, 1),
    Sketcher.Constraint("Coincident", 2, 2, 3, 1),
    Sketcher.Constraint("Coincident", 3, 2, 0, 1),
    Sketcher.Constraint("Horizontal", 0),
    Sketcher.Constraint("Vertical", 1),
    Sketcher.Constraint("Horizontal", 2),
    Sketcher.Constraint("Vertical", 3),
    Sketcher.Constraint("DistanceX", 0, 2, 0, 1, Q("3 mm")),
    Sketcher.Constraint("DistanceY", 1, 2, 1, 1, Q("7 mm")),
    Sketcher.Constraint("DistanceX", -1, 1, 0, 2, Q("43 mm")),
    Sketcher.Constraint("DistanceY", 0, 2, -1, 1, Q("15 mm")),
])
pocket13 = body.newObject("PartDesign::Pocket", "Pocket012")
pocket13.Profile = sketch15
pocket13.Type = "UpToFirst"
doc.recompute()

chamfer3 = body.newObject("PartDesign::Chamfer", "Chamfer002")
chamfer3.Base = (pocket13, edges_at(pocket13, [
    (-39.25, 69, 43.286),
    (-33, 69, 70.98),
    (39.25, 69, 43.286),
    (45.5, 69, 0.806),
    (0, 69, 87),
    (33, 69, 70.98),
    (0, 69, -30),
    (-45.5, 69, 0.806),
    (-31.5, 69, 85.5),
    (31.5, 69, 85.5),
    (44, 69, -28.5),
    (-44, 69, -28.5),
]))
chamfer3.Size = 0.5

sketch16 = body.newObject("Sketcher::SketchObject", "Sketch015")
sketch16.AttachmentSupport = (doc.getObject("XY_Plane"), [""])
sketch16.MapMode = "FlatFace"
sketch16.AttachmentOffset = App.Placement(V(0, 0, 90), App.Rotation())
sketch16.addGeometry(Part.Circle(V(-15, 19.5, 0), V(0, 0, 1), 3.8), False)
sketch16.addConstraint([
    Sketcher.Constraint("Diameter", 0, Q("7.5 mm")),
    Sketcher.Constraint("DistanceX", 0, 3, -1, 1, Q("15 mm")),
    Sketcher.Constraint("DistanceY", -1, 1, 0, 3, Q("19.5 mm")),
])
pocket14 = body.newObject("PartDesign::Pocket", "Pocket013")
pocket14.Profile = sketch16
pocket14.Type = "UpToFirst"

doc.recompute()
